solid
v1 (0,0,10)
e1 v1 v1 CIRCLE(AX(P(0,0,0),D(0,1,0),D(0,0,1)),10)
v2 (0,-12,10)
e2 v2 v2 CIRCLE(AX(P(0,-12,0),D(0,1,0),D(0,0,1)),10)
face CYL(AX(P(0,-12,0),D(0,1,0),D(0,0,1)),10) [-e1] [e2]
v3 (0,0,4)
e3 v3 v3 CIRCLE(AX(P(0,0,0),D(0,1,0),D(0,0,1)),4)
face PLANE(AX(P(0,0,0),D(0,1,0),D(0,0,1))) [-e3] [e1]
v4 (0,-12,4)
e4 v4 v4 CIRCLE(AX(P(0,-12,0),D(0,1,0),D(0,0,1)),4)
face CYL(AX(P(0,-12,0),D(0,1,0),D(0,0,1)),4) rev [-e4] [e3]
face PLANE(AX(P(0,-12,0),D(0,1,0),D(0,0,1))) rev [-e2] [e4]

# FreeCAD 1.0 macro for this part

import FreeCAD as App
import Part
import Sketcher

V = App.Vector
Q = App.Units.Quantity

doc = App.newDocument("Part")
body = doc.addObject("PartDesign::Body", "Body")

# Sketch on XZ plane
sketch1 = doc.addObject("Sketcher::SketchObject", "Sketch")
body.addObject(sketch1)
sketch1.AttachmentSupport = (doc.XZ_Plane, [""])
sketch1.MapMode = "FlatFace"
sketch1.addGeometry([
    Part.Circle(V(0, 0, 0), V(0, 0, 1), 10),
    Part.Circle(V(0, 0, 0), V(0, 0, 1), 4),
], False)
sketch1.addConstraint([
    Sketcher.Constraint("Coincident", 0, 3, -1, 1),
    Sketcher.Constraint("Coincident", 1, 3, -1, 1),
    Sketcher.Constraint("Diameter", 0, Q("20 mm")),
    Sketcher.Constraint("Diameter", 1, Q("8 mm")),
])
pad1 = doc.addObject("PartDesign::Pad", "Pad")
body.addObject(pad1)
pad1.Profile = sketch1
pad1.Length = 12

doc.recompute()
